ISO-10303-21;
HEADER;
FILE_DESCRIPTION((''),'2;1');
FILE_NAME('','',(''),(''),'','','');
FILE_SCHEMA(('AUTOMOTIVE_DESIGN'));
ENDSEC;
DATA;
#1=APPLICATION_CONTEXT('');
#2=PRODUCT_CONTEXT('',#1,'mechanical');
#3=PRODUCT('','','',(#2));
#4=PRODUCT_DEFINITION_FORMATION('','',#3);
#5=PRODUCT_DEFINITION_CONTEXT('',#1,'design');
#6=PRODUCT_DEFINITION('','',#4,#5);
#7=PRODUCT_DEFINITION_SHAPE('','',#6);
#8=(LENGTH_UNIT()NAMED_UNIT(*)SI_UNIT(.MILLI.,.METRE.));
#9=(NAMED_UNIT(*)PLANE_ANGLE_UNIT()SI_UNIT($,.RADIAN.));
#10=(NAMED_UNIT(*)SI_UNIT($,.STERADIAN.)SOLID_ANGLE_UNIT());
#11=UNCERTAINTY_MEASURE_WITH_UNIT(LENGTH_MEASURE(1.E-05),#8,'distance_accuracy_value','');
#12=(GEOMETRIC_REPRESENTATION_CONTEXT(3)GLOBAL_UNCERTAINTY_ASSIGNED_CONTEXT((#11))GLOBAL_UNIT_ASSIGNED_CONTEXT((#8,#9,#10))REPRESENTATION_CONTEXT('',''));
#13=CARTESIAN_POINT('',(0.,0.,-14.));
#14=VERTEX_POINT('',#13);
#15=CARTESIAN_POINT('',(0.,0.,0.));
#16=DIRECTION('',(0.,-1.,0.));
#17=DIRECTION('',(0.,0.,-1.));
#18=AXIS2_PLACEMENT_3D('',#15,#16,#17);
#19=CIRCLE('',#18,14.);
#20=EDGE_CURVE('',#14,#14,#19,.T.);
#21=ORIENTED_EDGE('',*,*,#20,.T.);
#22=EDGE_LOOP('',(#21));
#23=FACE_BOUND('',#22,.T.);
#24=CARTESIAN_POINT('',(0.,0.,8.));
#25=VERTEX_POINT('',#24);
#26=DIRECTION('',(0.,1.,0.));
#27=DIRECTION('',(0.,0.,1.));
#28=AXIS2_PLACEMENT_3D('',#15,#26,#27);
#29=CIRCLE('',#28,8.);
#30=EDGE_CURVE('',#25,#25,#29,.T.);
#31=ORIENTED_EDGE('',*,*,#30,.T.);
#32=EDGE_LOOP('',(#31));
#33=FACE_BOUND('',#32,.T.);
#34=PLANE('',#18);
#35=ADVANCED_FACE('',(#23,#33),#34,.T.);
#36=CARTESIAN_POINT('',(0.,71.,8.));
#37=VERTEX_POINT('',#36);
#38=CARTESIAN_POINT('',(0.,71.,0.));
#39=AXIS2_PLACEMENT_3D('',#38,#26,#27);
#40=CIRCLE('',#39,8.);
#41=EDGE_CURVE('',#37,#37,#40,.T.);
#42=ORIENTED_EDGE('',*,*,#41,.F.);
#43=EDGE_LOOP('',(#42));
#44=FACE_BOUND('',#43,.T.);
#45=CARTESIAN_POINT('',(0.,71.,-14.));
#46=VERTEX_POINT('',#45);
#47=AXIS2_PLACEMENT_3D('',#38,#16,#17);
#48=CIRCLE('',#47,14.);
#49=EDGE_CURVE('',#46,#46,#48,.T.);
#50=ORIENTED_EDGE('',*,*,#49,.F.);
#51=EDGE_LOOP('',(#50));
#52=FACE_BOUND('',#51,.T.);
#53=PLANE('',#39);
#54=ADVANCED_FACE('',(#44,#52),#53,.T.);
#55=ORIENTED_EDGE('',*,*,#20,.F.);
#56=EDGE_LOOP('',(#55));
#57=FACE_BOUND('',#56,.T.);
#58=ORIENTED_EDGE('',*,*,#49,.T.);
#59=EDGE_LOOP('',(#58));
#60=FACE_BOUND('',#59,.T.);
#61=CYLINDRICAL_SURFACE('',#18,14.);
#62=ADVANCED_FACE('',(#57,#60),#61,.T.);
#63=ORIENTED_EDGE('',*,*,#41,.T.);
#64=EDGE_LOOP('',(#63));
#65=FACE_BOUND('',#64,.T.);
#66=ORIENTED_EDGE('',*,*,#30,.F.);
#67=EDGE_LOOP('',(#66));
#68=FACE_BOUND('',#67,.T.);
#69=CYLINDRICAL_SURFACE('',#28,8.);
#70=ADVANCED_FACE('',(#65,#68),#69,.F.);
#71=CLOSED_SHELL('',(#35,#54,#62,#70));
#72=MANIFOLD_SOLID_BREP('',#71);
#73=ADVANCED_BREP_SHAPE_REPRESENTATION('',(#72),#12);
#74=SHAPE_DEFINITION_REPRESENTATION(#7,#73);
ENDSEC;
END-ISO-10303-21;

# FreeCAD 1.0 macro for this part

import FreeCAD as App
import Part
import Sketcher
from FreeCAD import Vector
Q = App.Units.Quantity


def add_polygon(sketch, points):
    """Adds a closed chain of lines whose ends are joined by coincident constraints."""
    first, n = sketch.GeometryCount, len(points)
    for a, b in zip(points, points[1:] + points[:1]):
        sketch.addGeometry(Part.LineSegment(App.Vector(*a, 0), App.Vector(*b, 0)), False)
    for i in range(n):
        sketch.addConstraint(Sketcher.Constraint("Coincident", first + i, 2, first + (i + 1) % n, 1))

doc = App.newDocument("Part")
params = doc.addObject("Spreadsheet::Sheet", "Params")
for row, (alias, value) in enumerate([
    ("sketch1_width", "14 mm"),
    ("sketch1_height", "71 mm"),
    ("revolution_angle", "360 deg"),
    ("sketch2_diameter", "16 mm"),
], start=1):
    params.set(f"A{row}", alias)
    params.set(f"B{row}", "=" + value)
    params.setAlias(f"B{row}", alias)

body = doc.addObject("PartDesign::Body", "Body")

sketch1 = doc.addObject("Sketcher::SketchObject", "Sketch")
body.addObject(sketch1)
sketch1.AttachmentSupport = (doc.XY_Plane, [""])
sketch1.MapMode = "FlatFace"
add_polygon(sketch1, [(0, 71), (0, 0), (14, 0), (14, 71)])
sketch1.addConstraint([
    Sketcher.Constraint("Vertical", 0),
    Sketcher.Constraint("Horizontal", 1),
    Sketcher.Constraint("Vertical", 2),
    Sketcher.Constraint("Horizontal", 3),
    Sketcher.Constraint("Coincident", 0, 2, -1, 1),
    Sketcher.Constraint("DistanceX", 1, 1, 1, 2, Q("14 mm")),
    Sketcher.Constraint("DistanceY", 0, 2, 0, 1, Q("71 mm")),
])
sketch1.setExpression("Constraints[9]", "Params.sketch1_width")
sketch1.setExpression("Constraints[10]", "Params.sketch1_height")
revolution = doc.addObject("PartDesign::Revolution", "Revolution")
body.addObject(revolution)
revolution.Profile = sketch1
revolution.ReferenceAxis = (sketch1, ["V_Axis"])
revolution.setExpression("Angle", "Params.revolution_angle")

sketch2 = doc.addObject("Sketcher::SketchObject", "Sketch001")
body.addObject(sketch2)
sketch2.AttachmentSupport = (doc.XZ_Plane, [""])
sketch2.MapMode = "FlatFace"
sketch2.AttachmentOffset = App.Placement(Vector(0, 0, -71), App.Rotation())
sketch2.addGeometry(Part.Circle(Vector(0, 0, 0), Vector(0, 0, 1), 8), False)
sketch2.addConstraint([
    Sketcher.Constraint("Coincident", 0, 3, -1, 1),
    Sketcher.Constraint("Diameter", 0, Q("16 mm")),
])
sketch2.setExpression("Constraints[1]", "Params.sketch2_diameter")
pocket1 = doc.addObject("PartDesign::Pocket", "Pocket")
body.addObject(pocket1)
pocket1.Profile = sketch2
pocket1.Type = "ThroughAll"
pocket1.Reversed = True

doc.recompute()
